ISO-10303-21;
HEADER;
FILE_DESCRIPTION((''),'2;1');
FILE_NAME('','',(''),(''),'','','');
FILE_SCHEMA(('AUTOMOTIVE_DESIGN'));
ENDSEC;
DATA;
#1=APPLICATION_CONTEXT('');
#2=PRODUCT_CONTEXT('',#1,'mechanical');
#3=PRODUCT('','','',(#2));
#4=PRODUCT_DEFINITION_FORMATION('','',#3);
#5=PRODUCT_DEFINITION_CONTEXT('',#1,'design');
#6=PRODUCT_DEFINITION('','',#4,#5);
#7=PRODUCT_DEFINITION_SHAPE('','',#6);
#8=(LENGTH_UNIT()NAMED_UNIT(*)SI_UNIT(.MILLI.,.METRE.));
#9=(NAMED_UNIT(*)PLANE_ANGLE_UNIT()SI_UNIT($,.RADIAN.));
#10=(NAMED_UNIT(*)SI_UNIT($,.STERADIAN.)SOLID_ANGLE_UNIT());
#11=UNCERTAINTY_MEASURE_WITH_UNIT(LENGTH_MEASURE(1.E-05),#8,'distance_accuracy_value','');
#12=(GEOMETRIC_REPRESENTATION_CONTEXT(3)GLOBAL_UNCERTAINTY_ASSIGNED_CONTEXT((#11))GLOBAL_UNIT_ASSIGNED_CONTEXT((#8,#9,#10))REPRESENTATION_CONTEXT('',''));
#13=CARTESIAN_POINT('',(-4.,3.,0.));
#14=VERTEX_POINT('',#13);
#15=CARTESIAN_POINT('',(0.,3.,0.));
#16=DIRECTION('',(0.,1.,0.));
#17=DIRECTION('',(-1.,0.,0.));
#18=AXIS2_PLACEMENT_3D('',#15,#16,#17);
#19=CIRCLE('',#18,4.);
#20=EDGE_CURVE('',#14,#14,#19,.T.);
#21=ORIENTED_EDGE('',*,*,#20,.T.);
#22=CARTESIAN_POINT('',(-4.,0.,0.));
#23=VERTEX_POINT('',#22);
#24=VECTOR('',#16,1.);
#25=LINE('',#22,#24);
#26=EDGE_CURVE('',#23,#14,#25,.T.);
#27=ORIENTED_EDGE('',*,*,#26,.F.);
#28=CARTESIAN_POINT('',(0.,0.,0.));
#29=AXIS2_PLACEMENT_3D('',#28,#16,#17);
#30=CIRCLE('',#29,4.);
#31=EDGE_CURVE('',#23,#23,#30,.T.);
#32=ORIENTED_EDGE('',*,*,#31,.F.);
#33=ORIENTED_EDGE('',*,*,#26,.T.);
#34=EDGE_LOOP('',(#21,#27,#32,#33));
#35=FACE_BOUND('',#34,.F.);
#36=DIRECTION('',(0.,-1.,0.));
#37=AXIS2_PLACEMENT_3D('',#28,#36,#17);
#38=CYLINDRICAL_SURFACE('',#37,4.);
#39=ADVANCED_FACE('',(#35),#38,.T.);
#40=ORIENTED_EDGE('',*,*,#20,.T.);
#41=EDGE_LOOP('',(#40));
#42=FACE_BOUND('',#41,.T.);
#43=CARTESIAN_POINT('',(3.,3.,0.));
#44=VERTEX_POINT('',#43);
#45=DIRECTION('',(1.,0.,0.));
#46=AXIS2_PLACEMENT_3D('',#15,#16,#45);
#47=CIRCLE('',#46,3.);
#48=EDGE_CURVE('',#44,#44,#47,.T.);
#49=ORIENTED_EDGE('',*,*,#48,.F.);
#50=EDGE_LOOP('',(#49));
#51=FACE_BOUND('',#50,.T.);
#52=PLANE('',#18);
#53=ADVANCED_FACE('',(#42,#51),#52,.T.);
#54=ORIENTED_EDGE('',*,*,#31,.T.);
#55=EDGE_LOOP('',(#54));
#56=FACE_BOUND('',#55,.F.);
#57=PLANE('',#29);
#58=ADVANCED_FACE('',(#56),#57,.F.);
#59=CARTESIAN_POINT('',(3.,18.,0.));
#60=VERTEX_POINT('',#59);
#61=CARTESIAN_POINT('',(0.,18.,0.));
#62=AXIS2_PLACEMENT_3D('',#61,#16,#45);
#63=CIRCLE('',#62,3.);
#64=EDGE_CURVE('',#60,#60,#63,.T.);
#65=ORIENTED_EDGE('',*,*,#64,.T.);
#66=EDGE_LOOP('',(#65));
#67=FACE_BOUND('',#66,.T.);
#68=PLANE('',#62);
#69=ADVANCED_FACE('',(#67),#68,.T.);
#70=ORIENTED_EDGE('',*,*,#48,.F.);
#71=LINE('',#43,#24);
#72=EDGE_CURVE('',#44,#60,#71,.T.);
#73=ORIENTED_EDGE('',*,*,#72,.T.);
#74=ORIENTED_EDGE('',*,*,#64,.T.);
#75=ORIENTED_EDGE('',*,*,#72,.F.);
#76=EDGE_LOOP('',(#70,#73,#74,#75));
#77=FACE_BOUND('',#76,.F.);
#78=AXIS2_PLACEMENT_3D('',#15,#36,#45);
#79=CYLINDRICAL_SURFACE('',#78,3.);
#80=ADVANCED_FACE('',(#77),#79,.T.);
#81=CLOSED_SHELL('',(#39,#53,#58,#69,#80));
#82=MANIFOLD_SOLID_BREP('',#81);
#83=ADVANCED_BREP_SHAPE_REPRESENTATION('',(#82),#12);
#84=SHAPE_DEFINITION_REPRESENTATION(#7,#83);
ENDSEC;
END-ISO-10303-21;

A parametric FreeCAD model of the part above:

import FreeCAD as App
import Part
import Sketcher
from FreeCAD import Vector

doc = App.newDocument("Part")
body = doc.addObject("PartDesign::Body", "Body")

# Sketch on XZ plane
sketch1 = body.newObject("Sketcher::SketchObject", "Sketch")
sketch1.AttachmentSupport = (doc.getObject("XZ_Plane"), [""])
sketch1.MapMode = "FlatFace"
sketch1.addGeometry(Part.Circle(Vector(0, 0, 0), Vector(0, 0, 1), 4), False)
sketch1.addConstraint([
    Sketcher.Constraint("Coincident", 0, 3, -1, 1),
    Sketcher.Constraint("Diameter", 0, 8.0),
])
pad1 = body.newObject("PartDesign::Pad", "Pad")
pad1.Profile = sketch1
pad1.Length = 3
pad1.Reversed = True

# Sketch on XZ plane
sketch2 = body.newObject("Sketcher::SketchObject", "Sketch001")
sketch2.AttachmentSupport = (doc.getObject("XZ_Plane"), [""])
sketch2.MapMode = "FlatFace"
sketch2.AttachmentOffset = App.Placement(Vector(0, 0, -3), App.Rotation())
sketch2.addGeometry(Part.Circle(Vector(0, 0, 0), Vector(0, 0, 1), 3), False)
sketch2.addConstraint([
    Sketcher.Constraint("Coincident", 0, 3, -1, 1),
    Sketcher.Constraint("Diameter", 0, 6.0),
])
pad2 = body.newObject("PartDesign::Pad", "Pad001")
pad2.Profile = sketch2
pad2.Length = 15
pad2.Reversed = True

doc.recompute()
